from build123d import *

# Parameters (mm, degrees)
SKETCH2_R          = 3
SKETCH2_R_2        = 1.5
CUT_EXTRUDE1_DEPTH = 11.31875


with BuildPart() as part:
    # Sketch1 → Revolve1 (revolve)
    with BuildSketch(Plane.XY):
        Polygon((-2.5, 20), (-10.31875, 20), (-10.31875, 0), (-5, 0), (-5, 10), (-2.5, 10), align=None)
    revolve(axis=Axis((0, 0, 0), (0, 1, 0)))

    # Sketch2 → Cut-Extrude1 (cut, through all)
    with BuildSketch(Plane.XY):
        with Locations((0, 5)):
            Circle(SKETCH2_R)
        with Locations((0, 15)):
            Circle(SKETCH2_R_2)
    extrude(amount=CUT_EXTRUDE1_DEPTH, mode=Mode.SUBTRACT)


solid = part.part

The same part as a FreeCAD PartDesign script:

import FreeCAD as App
import Part
import Sketcher
from FreeCAD import Vector

doc = App.newDocument("Part")
body = doc.addObject("PartDesign::Body", "Body")

# Sketch on XY plane
sketch1 = body.newObject("Sketcher::SketchObject", "Sketch")
sketch1.AttachmentSupport = (doc.getObject("XY_Plane"), [""])
sketch1.MapMode = "FlatFace"
sketch1.addGeometry(Part.LineSegment(Vector(-2.5, 20, 0), Vector(-10.3, 20, 0)), False)
sketch1.addGeometry(Part.LineSegment(Vector(-10.3, 20, 0), Vector(-10.3, 0, 0)), False)
sketch1.addGeometry(Part.LineSegment(Vector(-10.3, 0, 0), Vector(-5, 0, 0)), False)
sketch1.addGeometry(Part.LineSegment(Vector(-5, 0, 0), Vector(-5, 10, 0)), False)
sketch1.addGeometry(Part.LineSegment(Vector(-5, 10, 0), Vector(-2.5, 10, 0)), False)
sketch1.addGeometry(Part.LineSegment(Vector(-2.5, 10, 0), Vector(-2.5, 20, 0)), False)
sketch1.addConstraint(Sketcher.Constraint("Coincident", 0, 2, 1, 1))
sketch1.addConstraint(Sketcher.Constraint("Coincident", 1, 2, 2, 1))
sketch1.addConstraint(Sketcher.Constraint("Coincident", 2, 2, 3, 1))
sketch1.addConstraint(Sketcher.Constraint("Coincident", 3, 2, 4, 1))
sketch1.addConstraint(Sketcher.Constraint("Coincident", 4, 2, 5, 1))
sketch1.addConstraint(Sketcher.Constraint("Coincident", 5, 2, 0, 1))
sketch1.addConstraint(Sketcher.Constraint("Horizontal", 0))
sketch1.addConstraint(Sketcher.Constraint("Vertical", 1))
sketch1.addConstraint(Sketcher.Constraint("Horizontal", 2))
sketch1.addConstraint(Sketcher.Constraint("Vertical", 3))
sketch1.addConstraint(Sketcher.Constraint("Horizontal", 4))
sketch1.addConstraint(Sketcher.Constraint("Vertical", 5))
sketch1.addConstraint(Sketcher.Constraint("PointOnObject", 1, 2, -1))
sketch1.addConstraint(Sketcher.Constraint("Equal", 3, 5))
sketch1.addConstraint(Sketcher.Constraint("DistanceY", 1, 2, 1, 1, 20.0))
sketch1.addConstraint(Sketcher.Constraint("DistanceX", 4, 1, 4, 2, 2.5))
sketch1.addConstraint(Sketcher.Constraint("DistanceX", 2, 2, -1, 1, 5.0))
sketch1.addConstraint(Sketcher.Constraint("DistanceX", 0, 2, 0, 1, 7.81875))
revolution = body.newObject("PartDesign::Revolution", "Revolution")
revolution.Profile = sketch1
revolution.ReferenceAxis = (sketch1, ["V_Axis"])
revolution.Angle = 360

# Sketch on XY plane
sketch2 = body.newObject("Sketcher::SketchObject", "Sketch001")
sketch2.AttachmentSupport = (doc.getObject("XY_Plane"), [""])
sketch2.MapMode = "FlatFace"
sketch2.addGeometry(Part.Circle(Vector(0, 5, 0), Vector(0, 0, 1), 3), False)
sketch2.addGeometry(Part.Circle(Vector(0, 15, 0), Vector(0, 0, 1), 1.5), False)
sketch2.addConstraint(Sketcher.Constraint("PointOnObject", 0, 3, -2))
sketch2.addConstraint(Sketcher.Constraint("PointOnObject", 1, 3, -2))
sketch2.addConstraint(Sketcher.Constraint("Diameter", 0, 6.0))
sketch2.addConstraint(Sketcher.Constraint("Diameter", 1, 3.0))
sketch2.addConstraint(Sketcher.Constraint("DistanceY", -1, 1, 0, 3, 5.0))
sketch2.addConstraint(Sketcher.Constraint("DistanceY", -1, 1, 1, 3, 15.0))
pocket1 = body.newObject("PartDesign::Pocket", "Pocket")
pocket1.Profile = sketch2
pocket1.Type = "ThroughAll"
pocket1.Reversed = True

doc.recompute()
